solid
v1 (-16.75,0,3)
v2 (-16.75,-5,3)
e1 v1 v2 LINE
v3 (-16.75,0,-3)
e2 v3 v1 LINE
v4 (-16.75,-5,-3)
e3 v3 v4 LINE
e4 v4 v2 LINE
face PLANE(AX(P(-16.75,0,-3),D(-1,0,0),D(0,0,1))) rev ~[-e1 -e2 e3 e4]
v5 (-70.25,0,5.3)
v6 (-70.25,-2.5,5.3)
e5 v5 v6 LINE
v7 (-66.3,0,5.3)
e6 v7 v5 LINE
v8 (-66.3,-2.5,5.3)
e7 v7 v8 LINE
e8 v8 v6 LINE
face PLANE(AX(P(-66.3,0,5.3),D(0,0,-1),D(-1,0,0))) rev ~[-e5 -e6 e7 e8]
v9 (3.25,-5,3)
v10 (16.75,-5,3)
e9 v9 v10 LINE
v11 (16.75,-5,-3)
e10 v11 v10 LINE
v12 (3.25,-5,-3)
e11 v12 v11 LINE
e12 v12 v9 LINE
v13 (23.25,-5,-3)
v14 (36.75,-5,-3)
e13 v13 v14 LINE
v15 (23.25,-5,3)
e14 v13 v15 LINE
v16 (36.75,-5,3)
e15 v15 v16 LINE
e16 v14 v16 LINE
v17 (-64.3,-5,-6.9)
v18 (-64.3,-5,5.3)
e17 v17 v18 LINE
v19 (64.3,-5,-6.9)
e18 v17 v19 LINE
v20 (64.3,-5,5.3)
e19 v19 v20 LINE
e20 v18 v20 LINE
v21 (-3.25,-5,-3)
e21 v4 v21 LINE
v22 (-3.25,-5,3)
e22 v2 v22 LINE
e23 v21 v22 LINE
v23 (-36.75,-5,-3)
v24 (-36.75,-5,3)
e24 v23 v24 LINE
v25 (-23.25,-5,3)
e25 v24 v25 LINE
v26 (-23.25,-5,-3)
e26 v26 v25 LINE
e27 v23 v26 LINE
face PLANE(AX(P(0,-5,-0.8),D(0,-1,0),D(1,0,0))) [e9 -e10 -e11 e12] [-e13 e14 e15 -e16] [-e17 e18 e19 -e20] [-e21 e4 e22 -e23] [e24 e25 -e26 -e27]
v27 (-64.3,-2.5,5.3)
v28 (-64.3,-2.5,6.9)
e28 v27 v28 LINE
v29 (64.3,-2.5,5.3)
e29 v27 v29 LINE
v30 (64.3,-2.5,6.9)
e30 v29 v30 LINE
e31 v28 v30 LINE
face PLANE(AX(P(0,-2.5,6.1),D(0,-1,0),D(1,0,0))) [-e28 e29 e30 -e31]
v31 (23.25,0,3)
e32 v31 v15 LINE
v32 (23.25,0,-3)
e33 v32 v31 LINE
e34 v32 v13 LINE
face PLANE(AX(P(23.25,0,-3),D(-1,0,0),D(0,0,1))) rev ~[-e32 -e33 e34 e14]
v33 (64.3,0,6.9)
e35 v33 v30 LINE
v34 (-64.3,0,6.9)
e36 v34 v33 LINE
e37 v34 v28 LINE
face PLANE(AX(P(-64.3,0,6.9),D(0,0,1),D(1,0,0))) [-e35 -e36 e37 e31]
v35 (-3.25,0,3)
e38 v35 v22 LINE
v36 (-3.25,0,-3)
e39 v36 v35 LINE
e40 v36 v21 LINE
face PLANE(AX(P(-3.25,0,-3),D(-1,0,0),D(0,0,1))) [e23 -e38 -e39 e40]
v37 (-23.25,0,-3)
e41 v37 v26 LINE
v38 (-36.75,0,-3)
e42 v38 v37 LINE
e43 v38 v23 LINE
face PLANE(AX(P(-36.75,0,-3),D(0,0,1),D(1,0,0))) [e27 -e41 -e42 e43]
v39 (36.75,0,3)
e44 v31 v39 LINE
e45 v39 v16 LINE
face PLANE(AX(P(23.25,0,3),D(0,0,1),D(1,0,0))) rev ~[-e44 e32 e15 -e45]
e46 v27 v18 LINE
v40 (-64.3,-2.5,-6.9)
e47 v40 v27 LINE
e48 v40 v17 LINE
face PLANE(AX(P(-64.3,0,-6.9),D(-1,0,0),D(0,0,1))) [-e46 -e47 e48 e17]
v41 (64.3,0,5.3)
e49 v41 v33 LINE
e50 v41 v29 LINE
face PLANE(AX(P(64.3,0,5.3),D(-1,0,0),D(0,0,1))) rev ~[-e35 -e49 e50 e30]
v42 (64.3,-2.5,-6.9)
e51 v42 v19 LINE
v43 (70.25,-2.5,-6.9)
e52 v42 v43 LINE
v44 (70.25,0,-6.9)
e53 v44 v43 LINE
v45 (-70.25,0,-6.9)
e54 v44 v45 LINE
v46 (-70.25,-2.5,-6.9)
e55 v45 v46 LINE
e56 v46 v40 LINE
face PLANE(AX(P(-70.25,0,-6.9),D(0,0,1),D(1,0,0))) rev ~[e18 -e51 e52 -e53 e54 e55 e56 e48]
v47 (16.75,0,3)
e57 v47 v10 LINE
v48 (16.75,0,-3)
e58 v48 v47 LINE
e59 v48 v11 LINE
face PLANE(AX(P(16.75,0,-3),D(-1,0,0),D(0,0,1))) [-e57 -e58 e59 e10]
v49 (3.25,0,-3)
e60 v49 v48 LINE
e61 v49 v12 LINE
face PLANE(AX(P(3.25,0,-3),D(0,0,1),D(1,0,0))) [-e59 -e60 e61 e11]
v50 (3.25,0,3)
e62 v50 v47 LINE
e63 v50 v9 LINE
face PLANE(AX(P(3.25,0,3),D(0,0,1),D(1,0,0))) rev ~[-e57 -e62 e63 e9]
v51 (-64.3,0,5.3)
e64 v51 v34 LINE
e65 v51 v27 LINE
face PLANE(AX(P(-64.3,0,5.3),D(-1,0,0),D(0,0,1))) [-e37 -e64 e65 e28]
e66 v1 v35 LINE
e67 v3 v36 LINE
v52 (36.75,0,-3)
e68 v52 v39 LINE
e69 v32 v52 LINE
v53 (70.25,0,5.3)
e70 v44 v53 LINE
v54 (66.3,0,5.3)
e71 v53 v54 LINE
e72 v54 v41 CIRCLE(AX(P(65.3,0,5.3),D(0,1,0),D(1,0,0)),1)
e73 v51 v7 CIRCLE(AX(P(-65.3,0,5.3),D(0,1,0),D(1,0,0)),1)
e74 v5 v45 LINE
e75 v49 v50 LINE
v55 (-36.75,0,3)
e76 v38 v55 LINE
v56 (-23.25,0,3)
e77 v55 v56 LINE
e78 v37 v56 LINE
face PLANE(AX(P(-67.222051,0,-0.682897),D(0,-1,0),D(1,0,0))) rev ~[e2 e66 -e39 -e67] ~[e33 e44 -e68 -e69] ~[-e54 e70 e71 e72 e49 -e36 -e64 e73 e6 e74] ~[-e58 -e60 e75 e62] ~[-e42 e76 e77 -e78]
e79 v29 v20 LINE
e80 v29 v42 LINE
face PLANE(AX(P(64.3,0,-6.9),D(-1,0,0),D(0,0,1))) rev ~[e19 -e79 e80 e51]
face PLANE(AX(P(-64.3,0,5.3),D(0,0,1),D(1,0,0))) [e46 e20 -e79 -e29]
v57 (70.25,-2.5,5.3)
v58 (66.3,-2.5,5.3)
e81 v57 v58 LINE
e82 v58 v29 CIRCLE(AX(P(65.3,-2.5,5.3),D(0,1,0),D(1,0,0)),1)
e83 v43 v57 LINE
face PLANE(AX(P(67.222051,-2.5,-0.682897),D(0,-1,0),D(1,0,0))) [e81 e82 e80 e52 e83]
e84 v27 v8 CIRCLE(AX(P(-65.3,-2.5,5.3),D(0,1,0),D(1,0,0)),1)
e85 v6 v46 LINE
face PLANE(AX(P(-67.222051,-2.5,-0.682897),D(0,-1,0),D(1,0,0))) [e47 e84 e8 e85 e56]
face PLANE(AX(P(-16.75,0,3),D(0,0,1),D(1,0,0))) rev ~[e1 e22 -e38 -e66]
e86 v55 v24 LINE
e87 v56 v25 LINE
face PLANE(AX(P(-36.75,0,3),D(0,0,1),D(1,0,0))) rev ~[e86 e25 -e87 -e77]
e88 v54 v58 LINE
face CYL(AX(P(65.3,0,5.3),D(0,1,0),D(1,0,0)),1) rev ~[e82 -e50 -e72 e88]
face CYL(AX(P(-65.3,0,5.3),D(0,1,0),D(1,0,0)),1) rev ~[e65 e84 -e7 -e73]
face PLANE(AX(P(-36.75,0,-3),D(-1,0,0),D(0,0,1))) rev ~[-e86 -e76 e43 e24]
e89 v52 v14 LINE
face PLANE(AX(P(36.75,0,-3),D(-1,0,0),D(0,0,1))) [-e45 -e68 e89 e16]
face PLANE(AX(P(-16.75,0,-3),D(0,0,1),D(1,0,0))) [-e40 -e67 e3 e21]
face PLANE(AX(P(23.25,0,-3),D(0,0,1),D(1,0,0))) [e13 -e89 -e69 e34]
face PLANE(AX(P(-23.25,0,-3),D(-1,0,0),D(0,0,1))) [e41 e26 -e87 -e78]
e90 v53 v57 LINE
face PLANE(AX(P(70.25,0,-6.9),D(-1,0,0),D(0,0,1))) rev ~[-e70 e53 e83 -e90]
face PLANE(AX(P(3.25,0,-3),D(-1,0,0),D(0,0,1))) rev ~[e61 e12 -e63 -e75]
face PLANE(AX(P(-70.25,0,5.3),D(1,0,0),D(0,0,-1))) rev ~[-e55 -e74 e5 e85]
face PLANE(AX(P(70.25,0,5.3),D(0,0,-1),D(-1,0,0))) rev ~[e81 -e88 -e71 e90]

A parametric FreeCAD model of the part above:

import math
import FreeCAD as App
import Part
import Sketcher

doc = App.newDocument("Part")
body = doc.addObject("PartDesign::Body", "Body")

# Sketch on XZ plane
sketch1 = doc.addObject("Sketcher::SketchObject", "Sketch")
body.addObject(sketch1)
sketch1.AttachmentSupport = (doc.XZ_Plane, [""])
sketch1.MapMode = "FlatFace"
sketch1.addGeometry(Part.LineSegment(App.Vector(-64, 5, 0), App.Vector(-64, -7, 0)), False)
sketch1.addGeometry(Part.LineSegment(App.Vector(-64, -7, 0), App.Vector(64, -7, 0)), False)
sketch1.addGeometry(Part.LineSegment(App.Vector(64, -7, 0), App.Vector(64, 5, 0)), False)
sketch1.addGeometry(Part.LineSegment(App.Vector(64, 5, 0), App.Vector(-64, 5, 0)), False)
sketch1.addGeometry(Part.LineSegment(App.Vector(-23, -3, 0), App.Vector(-37, -3, 0)), False)
sketch1.addGeometry(Part.LineSegment(App.Vector(-37, -3, 0), App.Vector(-37, 3, 0)), False)
sketch1.addGeometry(Part.LineSegment(App.Vector(-37, 3, 0), App.Vector(-23, 3, 0)), False)
sketch1.addGeometry(Part.LineSegment(App.Vector(-23, 3, 0), App.Vector(-23, -3, 0)), False)
sketch1.addGeometry(Part.LineSegment(App.Vector(-3, -3, 0), App.Vector(-17, -3, 0)), False)
sketch1.addGeometry(Part.LineSegment(App.Vector(-17, -3, 0), App.Vector(-17, 3, 0)), False)
sketch1.addGeometry(Part.LineSegment(App.Vector(-17, 3, 0), App.Vector(-3, 3, 0)), False)
sketch1.addGeometry(Part.LineSegment(App.Vector(-3, 3, 0), App.Vector(-3, -3, 0)), False)
sketch1.addGeometry(Part.LineSegment(App.Vector(17, -3, 0), App.Vector(3, -3, 0)), False)
sketch1.addGeometry(Part.LineSegment(App.Vector(3, -3, 0), App.Vector(3, 3, 0)), False)
sketch1.addGeometry(Part.LineSegment(App.Vector(3, 3, 0), App.Vector(17, 3, 0)), False)
sketch1.addGeometry(Part.LineSegment(App.Vector(17, 3, 0), App.Vector(17, -3, 0)), False)
sketch1.addGeometry(Part.LineSegment(App.Vector(37, -3, 0), App.Vector(23, -3, 0)), False)
sketch1.addGeometry(Part.LineSegment(App.Vector(23, -3, 0), App.Vector(23, 3, 0)), False)
sketch1.addGeometry(Part.LineSegment(App.Vector(23, 3, 0), App.Vector(37, 3, 0)), False)
sketch1.addGeometry(Part.LineSegment(App.Vector(37, 3, 0), App.Vector(37, -3, 0)), False)
sketch1.addConstraint(Sketcher.Constraint("Coincident", 0, 2, 1, 1))
sketch1.addConstraint(Sketcher.Constraint("Coincident", 1, 2, 2, 1))
sketch1.addConstraint(Sketcher.Constraint("Coincident", 2, 2, 3, 1))
sketch1.addConstraint(Sketcher.Constraint("Coincident", 3, 2, 0, 1))
sketch1.addConstraint(Sketcher.Constraint("Coincident", 4, 2, 5, 1))
sketch1.addConstraint(Sketcher.Constraint("Coincident", 5, 2, 6, 1))
sketch1.addConstraint(Sketcher.Constraint("Coincident", 6, 2, 7, 1))
sketch1.addConstraint(Sketcher.Constraint("Coincident", 7, 2, 4, 1))
sketch1.addConstraint(Sketcher.Constraint("Coincident", 8, 2, 9, 1))
sketch1.addConstraint(Sketcher.Constraint("Coincident", 9, 2, 10, 1))
sketch1.addConstraint(Sketcher.Constraint("Coincident", 10, 2, 11, 1))
sketch1.addConstraint(Sketcher.Constraint("Coincident", 11, 2, 8, 1))
sketch1.addConstraint(Sketcher.Constraint("Coincident", 12, 2, 13, 1))
sketch1.addConstraint(Sketcher.Constraint("Coincident", 13, 2, 14, 1))
sketch1.addConstraint(Sketcher.Constraint("Coincident", 14, 2, 15, 1))
sketch1.addConstraint(Sketcher.Constraint("Coincident", 15, 2, 12, 1))
sketch1.addConstraint(Sketcher.Constraint("Coincident", 16, 2, 17, 1))
sketch1.addConstraint(Sketcher.Constraint("Coincident", 17, 2, 18, 1))
sketch1.addConstraint(Sketcher.Constraint("Coincident", 18, 2, 19, 1))
sketch1.addConstraint(Sketcher.Constraint("Coincident", 19, 2, 16, 1))
sketch1.addConstraint(Sketcher.Constraint("Vertical", 0))
sketch1.addConstraint(Sketcher.Constraint("Horizontal", 1))
sketch1.addConstraint(Sketcher.Constraint("Vertical", 2))
sketch1.addConstraint(Sketcher.Constraint("Horizontal", 3))
sketch1.addConstraint(Sketcher.Constraint("Horizontal", 4))
sketch1.addConstraint(Sketcher.Constraint("Vertical", 5))
sketch1.addConstraint(Sketcher.Constraint("Horizontal", 6))
sketch1.addConstraint(Sketcher.Constraint("Vertical", 7))
sketch1.addConstraint(Sketcher.Constraint("Horizontal", 8))
sketch1.addConstraint(Sketcher.Constraint("Vertical", 9))
sketch1.addConstraint(Sketcher.Constraint("Horizontal", 10))
sketch1.addConstraint(Sketcher.Constraint("Vertical", 11))
sketch1.addConstraint(Sketcher.Constraint("Horizontal", 12))
sketch1.addConstraint(Sketcher.Constraint("Vertical", 13))
sketch1.addConstraint(Sketcher.Constraint("Horizontal", 14))
sketch1.addConstraint(Sketcher.Constraint("Vertical", 15))
sketch1.addConstraint(Sketcher.Constraint("Horizontal", 16))
sketch1.addConstraint(Sketcher.Constraint("Vertical", 17))
sketch1.addConstraint(Sketcher.Constraint("Horizontal", 18))
sketch1.addConstraint(Sketcher.Constraint("Vertical", 19))
sketch1.addConstraint(Sketcher.Constraint("Symmetric", 10, 2, 12, 2, -1, 1))
sketch1.addConstraint(Sketcher.Constraint("Symmetric", 8, 2, 14, 2, -1, 1))
sketch1.addConstraint(Sketcher.Constraint("Symmetric", 6, 2, 16, 2, -1, 1))
sketch1.addConstraint(Sketcher.Constraint("Symmetric", 4, 2, 18, 2, -1, 1))
sketch1.addConstraint(Sketcher.Constraint("Horizontal", 7, 2, 8, 2))
sketch1.addConstraint(Sketcher.Constraint("Horizontal", 6, 2, 9, 2))
sketch1.addConstraint(Sketcher.Constraint("Horizontal", 11, 2, 12, 2))
sketch1.addConstraint(Sketcher.Constraint("Equal", 6, 8))
sketch1.addConstraint(Sketcher.Constraint("DistanceY", 5, 1, 5, 2, 6.0))
sketch1.addConstraint(Sketcher.Constraint("DistanceX", 1, 1, 1, 2, 128.6))
sketch1.addConstraint(Sketcher.Constraint("DistanceX", 4, 2, 4, 1, 13.5))
sketch1.addConstraint(Sketcher.Constraint("DistanceY", 0, 2, 0, 1, 12.2))
sketch1.addConstraint(Sketcher.Constraint("DistanceX", 4, 2, 8, 2, 20.0))
sketch1.addConstraint(Sketcher.Constraint("DistanceX", 8, 2, 12, 2, 20.0))
sketch1.addConstraint(Sketcher.Constraint("DistanceX", 0, 2, -1, 1, 64.3))
sketch1.addConstraint(Sketcher.Constraint("DistanceY", 0, 2, -1, 1, 6.9))
pad1 = doc.addObject("PartDesign::Pad", "Pad")
body.addObject(pad1)
pad1.Profile = sketch1
pad1.Length = 5

# Sketch on XZ plane
sketch2 = doc.addObject("Sketcher::SketchObject", "Sketch001")
body.addObject(sketch2)
sketch2.AttachmentSupport = (doc.XZ_Plane, [""])
sketch2.MapMode = "FlatFace"
sketch2.addGeometry(Part.LineSegment(App.Vector(-64.3, -6.9, 0), App.Vector(-64.3, 5.3, 0)), False)
sketch2.addGeometry(Part.ArcOfCircle(Part.Circle(App.Vector(-65.3, 5.3, 0), App.Vector(0, 0, 1), 1), math.radians(180), math.radians(360)), False)
sketch2.addGeometry(Part.LineSegment(App.Vector(-66.3, 5.3, 0), App.Vector(-70.2, 5.3, 0)), False)
sketch2.addGeometry(Part.LineSegment(App.Vector(-70.2, 5.3, 0), App.Vector(-70.2, -6.9, 0)), False)
sketch2.addGeometry(Part.LineSegment(App.Vector(-70.2, -6.9, 0), App.Vector(-64.3, -6.9, 0)), False)
sketch2.addGeometry(Part.LineSegment(App.Vector(-64.3, 6.9, 0), App.Vector(-64.3, 5.3, 0)), False)
sketch2.addGeometry(Part.LineSegment(App.Vector(-64.3, 5.3, 0), App.Vector(64.3, 5.3, 0)), False)
sketch2.addGeometry(Part.LineSegment(App.Vector(64.3, 5.3, 0), App.Vector(64.3, 6.9, 0)), False)
sketch2.addGeometry(Part.LineSegment(App.Vector(64.3, 6.9, 0), App.Vector(-64.3, 6.9, 0)), False)
sketch2.addGeometry(Part.ArcOfCircle(Part.Circle(App.Vector(65.3, 5.3, 0), App.Vector(0, 0, 1), 1), math.radians(180), math.radians(360)), False)
sketch2.addGeometry(Part.LineSegment(App.Vector(64.3, 5.3, 0), App.Vector(64.3, -6.9, 0)), False)
sketch2.addGeometry(Part.LineSegment(App.Vector(64.3, -6.9, 0), App.Vector(70.2, -6.9, 0)), False)
sketch2.addGeometry(Part.LineSegment(App.Vector(70.2, -6.9, 0), App.Vector(70.2, 5.3, 0)), False)
sketch2.addGeometry(Part.LineSegment(App.Vector(70.2, 5.3, 0), App.Vector(66.3, 5.3, 0)), False)
sketch2.addConstraint(Sketcher.Constraint("Tangent", 0, 2, 1, 2))
sketch2.addConstraint(Sketcher.Constraint("Coincident", 1, 1, 2, 1))
sketch2.addConstraint(Sketcher.Constraint("Coincident", 2, 2, 3, 1))
sketch2.addConstraint(Sketcher.Constraint("Coincident", 3, 2, 4, 1))
sketch2.addConstraint(Sketcher.Constraint("Coincident", 4, 2, 0, 1))
sketch2.addConstraint(Sketcher.Constraint("Coincident", 5, 2, 6, 1))
sketch2.addConstraint(Sketcher.Constraint("Coincident", 6, 2, 7, 1))
sketch2.addConstraint(Sketcher.Constraint("Coincident", 7, 2, 8, 1))
sketch2.addConstraint(Sketcher.Constraint("Coincident", 8, 2, 5, 1))
sketch2.addConstraint(Sketcher.Constraint("Tangent", 9, 1, 10, 1))
sketch2.addConstraint(Sketcher.Constraint("Coincident", 10, 2, 11, 1))
sketch2.addConstraint(Sketcher.Constraint("Coincident", 11, 2, 12, 1))
sketch2.addConstraint(Sketcher.Constraint("Coincident", 12, 2, 13, 1))
sketch2.addConstraint(Sketcher.Constraint("Coincident", 13, 2, 9, 2))
sketch2.addConstraint(Sketcher.Constraint("Vertical", 0))
sketch2.addConstraint(Sketcher.Constraint("Horizontal", 2))
sketch2.addConstraint(Sketcher.Constraint("Vertical", 3))
sketch2.addConstraint(Sketcher.Constraint("Horizontal", 4))
sketch2.addConstraint(Sketcher.Constraint("Vertical", 5))
sketch2.addConstraint(Sketcher.Constraint("Horizontal", 6))
sketch2.addConstraint(Sketcher.Constraint("Vertical", 7))
sketch2.addConstraint(Sketcher.Constraint("Horizontal", 8))
sketch2.addConstraint(Sketcher.Constraint("Vertical", 10))
sketch2.addConstraint(Sketcher.Constraint("Horizontal", 11))
sketch2.addConstraint(Sketcher.Constraint("Vertical", 12))
sketch2.addConstraint(Sketcher.Constraint("Horizontal", 13))
sketch2.addConstraint(Sketcher.Constraint("Coincident", 5, 2, 0, 2))
sketch2.addConstraint(Sketcher.Constraint("Coincident", 9, 1, 6, 2))
sketch2.addConstraint(Sketcher.Constraint("Equal", 1, 9))
sketch2.addConstraint(Sketcher.Constraint("Symmetric", 4, 2, 7, 2, -1, 1))
sketch2.addConstraint(Sketcher.Constraint("Symmetric", 3, 2, 11, 2, -2))
sketch2.addConstraint(Sketcher.Constraint("Horizontal", 0, 2, 1, 1))
sketch2.addConstraint(Sketcher.Constraint("Horizontal", 9, 1, 12, 2))
sketch2.addConstraint(Sketcher.Constraint("Radius", 1, 1.0))
sketch2.addConstraint(Sketcher.Constraint("DistanceX", 6, 1, 6, 2, 128.6))
sketch2.addConstraint(Sketcher.Constraint("DistanceY", 0, 1, 0, 2, 12.2))
sketch2.addConstraint(Sketcher.Constraint("DistanceY", 5, 2, 5, 1, 1.6))
sketch2.addConstraint(Sketcher.Constraint("DistanceX", 2, 2, 2, 1, 3.95))
pad2 = doc.addObject("PartDesign::Pad", "Pad001")
body.addObject(pad2)
pad2.Profile = sketch2
pad2.Length = 2.5

doc.recompute()
